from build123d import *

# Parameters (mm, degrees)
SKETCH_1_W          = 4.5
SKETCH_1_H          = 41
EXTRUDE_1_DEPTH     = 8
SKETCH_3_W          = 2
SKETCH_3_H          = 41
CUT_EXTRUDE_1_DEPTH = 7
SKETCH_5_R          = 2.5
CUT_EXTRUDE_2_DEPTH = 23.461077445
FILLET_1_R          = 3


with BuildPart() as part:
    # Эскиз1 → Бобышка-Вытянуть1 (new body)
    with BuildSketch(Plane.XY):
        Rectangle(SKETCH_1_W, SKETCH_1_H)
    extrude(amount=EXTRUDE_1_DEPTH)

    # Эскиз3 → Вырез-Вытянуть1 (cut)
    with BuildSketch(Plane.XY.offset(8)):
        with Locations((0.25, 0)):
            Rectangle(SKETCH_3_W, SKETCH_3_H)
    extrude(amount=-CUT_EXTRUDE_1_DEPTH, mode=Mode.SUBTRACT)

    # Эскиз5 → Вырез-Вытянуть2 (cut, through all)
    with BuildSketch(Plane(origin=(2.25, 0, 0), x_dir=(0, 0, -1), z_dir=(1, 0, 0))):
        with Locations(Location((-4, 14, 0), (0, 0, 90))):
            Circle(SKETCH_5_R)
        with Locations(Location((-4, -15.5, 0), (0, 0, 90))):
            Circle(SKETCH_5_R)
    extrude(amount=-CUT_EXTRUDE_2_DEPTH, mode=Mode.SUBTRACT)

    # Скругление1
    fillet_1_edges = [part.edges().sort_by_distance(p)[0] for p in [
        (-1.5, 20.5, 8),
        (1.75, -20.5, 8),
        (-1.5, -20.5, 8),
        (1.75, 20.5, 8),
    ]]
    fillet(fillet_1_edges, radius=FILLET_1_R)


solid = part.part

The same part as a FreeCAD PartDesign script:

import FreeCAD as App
import Part
import Sketcher
Q = App.Units.Quantity


def edges_at(feature, points):
    """Names of the edges that pass closest to the given points."""
    edges = feature.Shape.Edges
    near = lambda p: min(range(len(edges)), key=lambda i: edges[i].distToShape(Part.Vertex(*p))[0])
    return sorted({f"Edge{near(p) + 1}" for p in points})

doc = App.newDocument("Part")
body = doc.addObject("PartDesign::Body", "Body")

# Sketch on XY plane
sketch1 = body.newObject("Sketcher::SketchObject", "Sketch")
sketch1.AttachmentSupport = (doc.getObject("XY_Plane"), [""])
sketch1.MapMode = "FlatFace"
sketch1.addGeometry([
    Part.LineSegment(App.Vector(-2.25, 20.5, 0), App.Vector(-2.25, -20.5, 0)),
    Part.LineSegment(App.Vector(-2.25, -20.5, 0), App.Vector(2.25, -20.5, 0)),
    Part.LineSegment(App.Vector(2.25, -20.5, 0), App.Vector(2.25, 20.5, 0)),
    Part.LineSegment(App.Vector(2.25, 20.5, 0), App.Vector(-2.25, 20.5, 0)),
], False)
sketch1.addConstraint([
    Sketcher.Constraint("Coincident", 0, 2, 1, 1),
    Sketcher.Constraint("Coincident", 1, 2, 2, 1),
    Sketcher.Constraint("Coincident", 2, 2, 3, 1),
    Sketcher.Constraint("Coincident", 3, 2, 0, 1),
    Sketcher.Constraint("Vertical", 0),
    Sketcher.Constraint("Horizontal", 1),
    Sketcher.Constraint("Vertical", 2),
    Sketcher.Constraint("Horizontal", 3),
    Sketcher.Constraint("Symmetric", 0, 2, 2, 2, -1, 1),
    Sketcher.Constraint("DistanceY", 0, 2, 0, 1, Q("41 mm")),
    Sketcher.Constraint("DistanceX", 1, 1, 1, 2, Q("4.5 mm")),
])
pad1 = body.newObject("PartDesign::Pad", "Pad")
pad1.Profile = sketch1
pad1.Length = 8

# Sketch on XY plane
sketch2 = body.newObject("Sketcher::SketchObject", "Sketch001")
sketch2.AttachmentSupport = (doc.getObject("XY_Plane"), [""])
sketch2.MapMode = "FlatFace"
sketch2.AttachmentOffset = App.Placement(App.Vector(0, 0, 8), App.Rotation())
sketch2.addGeometry([
    Part.LineSegment(App.Vector(-0.75, 20.5, 0), App.Vector(-0.75, -20.5, 0)),
    Part.LineSegment(App.Vector(-0.75, -20.5, 0), App.Vector(1.25, -20.5, 0)),
    Part.LineSegment(App.Vector(1.25, -20.5, 0), App.Vector(1.25, 20.5, 0)),
    Part.LineSegment(App.Vector(1.25, 20.5, 0), App.Vector(-0.75, 20.5, 0)),
], False)
sketch2.addConstraint([
    Sketcher.Constraint("Coincident", 0, 2, 1, 1),
    Sketcher.Constraint("Coincident", 1, 2, 2, 1),
    Sketcher.Constraint("Coincident", 2, 2, 3, 1),
    Sketcher.Constraint("Coincident", 3, 2, 0, 1),
    Sketcher.Constraint("Vertical", 0),
    Sketcher.Constraint("Horizontal", 1),
    Sketcher.Constraint("Vertical", 2),
    Sketcher.Constraint("Horizontal", 3),
    Sketcher.Constraint("DistanceX", 1, 1, 1, 2, Q("2 mm")),
    Sketcher.Constraint("DistanceY", 0, 2, 0, 1, Q("41 mm")),
    Sketcher.Constraint("DistanceY", 0, 2, -1, 1, Q("20.5 mm")),
    Sketcher.Constraint("DistanceX", 0, 2, -1, 1, Q("0.75 mm")),
])
pocket1 = body.newObject("PartDesign::Pocket", "Pocket")
pocket1.Profile = sketch2
pocket1.Length = 7

# Sketch on YZ plane
sketch3 = body.newObject("Sketcher::SketchObject", "Sketch002")
sketch3.AttachmentSupport = (doc.getObject("YZ_Plane"), [""])
sketch3.MapMode = "FlatFace"
sketch3.AttachmentOffset = App.Placement(App.Vector(0, 0, 2.25), App.Rotation())
sketch3.addGeometry([
    Part.Circle(App.Vector(14, 4, 0), App.Vector(0, 0, 1), 2.5),
    Part.Circle(App.Vector(-15.5, 4, 0), App.Vector(0, 0, 1), 2.5),
], False)
sketch3.addConstraint([
    Sketcher.Constraint("Equal", 0, 1),
    Sketcher.Constraint("Horizontal", 0, 3, 1, 3),
    Sketcher.Constraint("Diameter", 0, Q("5 mm")),
    Sketcher.Constraint("DistanceX", -1, 1, 0, 3, Q("14 mm")),
    Sketcher.Constraint("DistanceY", -1, 1, 0, 3, Q("4 mm")),
    Sketcher.Constraint("DistanceX", 1, 3, -1, 1, Q("15.5 mm")),
])
pocket2 = body.newObject("PartDesign::Pocket", "Pocket001")
pocket2.Profile = sketch3
pocket2.Type = "ThroughAll"
doc.recompute()

fillet = body.newObject("PartDesign::Fillet", "Fillet")
fillet.Base = (pocket2, edges_at(pocket2, [
    (-1.5, 20.5, 8),
    (1.75, -20.5, 8),
    (-1.5, -20.5, 8),
    (1.75, 20.5, 8),
]))
fillet.Radius = 3

doc.recompute()
